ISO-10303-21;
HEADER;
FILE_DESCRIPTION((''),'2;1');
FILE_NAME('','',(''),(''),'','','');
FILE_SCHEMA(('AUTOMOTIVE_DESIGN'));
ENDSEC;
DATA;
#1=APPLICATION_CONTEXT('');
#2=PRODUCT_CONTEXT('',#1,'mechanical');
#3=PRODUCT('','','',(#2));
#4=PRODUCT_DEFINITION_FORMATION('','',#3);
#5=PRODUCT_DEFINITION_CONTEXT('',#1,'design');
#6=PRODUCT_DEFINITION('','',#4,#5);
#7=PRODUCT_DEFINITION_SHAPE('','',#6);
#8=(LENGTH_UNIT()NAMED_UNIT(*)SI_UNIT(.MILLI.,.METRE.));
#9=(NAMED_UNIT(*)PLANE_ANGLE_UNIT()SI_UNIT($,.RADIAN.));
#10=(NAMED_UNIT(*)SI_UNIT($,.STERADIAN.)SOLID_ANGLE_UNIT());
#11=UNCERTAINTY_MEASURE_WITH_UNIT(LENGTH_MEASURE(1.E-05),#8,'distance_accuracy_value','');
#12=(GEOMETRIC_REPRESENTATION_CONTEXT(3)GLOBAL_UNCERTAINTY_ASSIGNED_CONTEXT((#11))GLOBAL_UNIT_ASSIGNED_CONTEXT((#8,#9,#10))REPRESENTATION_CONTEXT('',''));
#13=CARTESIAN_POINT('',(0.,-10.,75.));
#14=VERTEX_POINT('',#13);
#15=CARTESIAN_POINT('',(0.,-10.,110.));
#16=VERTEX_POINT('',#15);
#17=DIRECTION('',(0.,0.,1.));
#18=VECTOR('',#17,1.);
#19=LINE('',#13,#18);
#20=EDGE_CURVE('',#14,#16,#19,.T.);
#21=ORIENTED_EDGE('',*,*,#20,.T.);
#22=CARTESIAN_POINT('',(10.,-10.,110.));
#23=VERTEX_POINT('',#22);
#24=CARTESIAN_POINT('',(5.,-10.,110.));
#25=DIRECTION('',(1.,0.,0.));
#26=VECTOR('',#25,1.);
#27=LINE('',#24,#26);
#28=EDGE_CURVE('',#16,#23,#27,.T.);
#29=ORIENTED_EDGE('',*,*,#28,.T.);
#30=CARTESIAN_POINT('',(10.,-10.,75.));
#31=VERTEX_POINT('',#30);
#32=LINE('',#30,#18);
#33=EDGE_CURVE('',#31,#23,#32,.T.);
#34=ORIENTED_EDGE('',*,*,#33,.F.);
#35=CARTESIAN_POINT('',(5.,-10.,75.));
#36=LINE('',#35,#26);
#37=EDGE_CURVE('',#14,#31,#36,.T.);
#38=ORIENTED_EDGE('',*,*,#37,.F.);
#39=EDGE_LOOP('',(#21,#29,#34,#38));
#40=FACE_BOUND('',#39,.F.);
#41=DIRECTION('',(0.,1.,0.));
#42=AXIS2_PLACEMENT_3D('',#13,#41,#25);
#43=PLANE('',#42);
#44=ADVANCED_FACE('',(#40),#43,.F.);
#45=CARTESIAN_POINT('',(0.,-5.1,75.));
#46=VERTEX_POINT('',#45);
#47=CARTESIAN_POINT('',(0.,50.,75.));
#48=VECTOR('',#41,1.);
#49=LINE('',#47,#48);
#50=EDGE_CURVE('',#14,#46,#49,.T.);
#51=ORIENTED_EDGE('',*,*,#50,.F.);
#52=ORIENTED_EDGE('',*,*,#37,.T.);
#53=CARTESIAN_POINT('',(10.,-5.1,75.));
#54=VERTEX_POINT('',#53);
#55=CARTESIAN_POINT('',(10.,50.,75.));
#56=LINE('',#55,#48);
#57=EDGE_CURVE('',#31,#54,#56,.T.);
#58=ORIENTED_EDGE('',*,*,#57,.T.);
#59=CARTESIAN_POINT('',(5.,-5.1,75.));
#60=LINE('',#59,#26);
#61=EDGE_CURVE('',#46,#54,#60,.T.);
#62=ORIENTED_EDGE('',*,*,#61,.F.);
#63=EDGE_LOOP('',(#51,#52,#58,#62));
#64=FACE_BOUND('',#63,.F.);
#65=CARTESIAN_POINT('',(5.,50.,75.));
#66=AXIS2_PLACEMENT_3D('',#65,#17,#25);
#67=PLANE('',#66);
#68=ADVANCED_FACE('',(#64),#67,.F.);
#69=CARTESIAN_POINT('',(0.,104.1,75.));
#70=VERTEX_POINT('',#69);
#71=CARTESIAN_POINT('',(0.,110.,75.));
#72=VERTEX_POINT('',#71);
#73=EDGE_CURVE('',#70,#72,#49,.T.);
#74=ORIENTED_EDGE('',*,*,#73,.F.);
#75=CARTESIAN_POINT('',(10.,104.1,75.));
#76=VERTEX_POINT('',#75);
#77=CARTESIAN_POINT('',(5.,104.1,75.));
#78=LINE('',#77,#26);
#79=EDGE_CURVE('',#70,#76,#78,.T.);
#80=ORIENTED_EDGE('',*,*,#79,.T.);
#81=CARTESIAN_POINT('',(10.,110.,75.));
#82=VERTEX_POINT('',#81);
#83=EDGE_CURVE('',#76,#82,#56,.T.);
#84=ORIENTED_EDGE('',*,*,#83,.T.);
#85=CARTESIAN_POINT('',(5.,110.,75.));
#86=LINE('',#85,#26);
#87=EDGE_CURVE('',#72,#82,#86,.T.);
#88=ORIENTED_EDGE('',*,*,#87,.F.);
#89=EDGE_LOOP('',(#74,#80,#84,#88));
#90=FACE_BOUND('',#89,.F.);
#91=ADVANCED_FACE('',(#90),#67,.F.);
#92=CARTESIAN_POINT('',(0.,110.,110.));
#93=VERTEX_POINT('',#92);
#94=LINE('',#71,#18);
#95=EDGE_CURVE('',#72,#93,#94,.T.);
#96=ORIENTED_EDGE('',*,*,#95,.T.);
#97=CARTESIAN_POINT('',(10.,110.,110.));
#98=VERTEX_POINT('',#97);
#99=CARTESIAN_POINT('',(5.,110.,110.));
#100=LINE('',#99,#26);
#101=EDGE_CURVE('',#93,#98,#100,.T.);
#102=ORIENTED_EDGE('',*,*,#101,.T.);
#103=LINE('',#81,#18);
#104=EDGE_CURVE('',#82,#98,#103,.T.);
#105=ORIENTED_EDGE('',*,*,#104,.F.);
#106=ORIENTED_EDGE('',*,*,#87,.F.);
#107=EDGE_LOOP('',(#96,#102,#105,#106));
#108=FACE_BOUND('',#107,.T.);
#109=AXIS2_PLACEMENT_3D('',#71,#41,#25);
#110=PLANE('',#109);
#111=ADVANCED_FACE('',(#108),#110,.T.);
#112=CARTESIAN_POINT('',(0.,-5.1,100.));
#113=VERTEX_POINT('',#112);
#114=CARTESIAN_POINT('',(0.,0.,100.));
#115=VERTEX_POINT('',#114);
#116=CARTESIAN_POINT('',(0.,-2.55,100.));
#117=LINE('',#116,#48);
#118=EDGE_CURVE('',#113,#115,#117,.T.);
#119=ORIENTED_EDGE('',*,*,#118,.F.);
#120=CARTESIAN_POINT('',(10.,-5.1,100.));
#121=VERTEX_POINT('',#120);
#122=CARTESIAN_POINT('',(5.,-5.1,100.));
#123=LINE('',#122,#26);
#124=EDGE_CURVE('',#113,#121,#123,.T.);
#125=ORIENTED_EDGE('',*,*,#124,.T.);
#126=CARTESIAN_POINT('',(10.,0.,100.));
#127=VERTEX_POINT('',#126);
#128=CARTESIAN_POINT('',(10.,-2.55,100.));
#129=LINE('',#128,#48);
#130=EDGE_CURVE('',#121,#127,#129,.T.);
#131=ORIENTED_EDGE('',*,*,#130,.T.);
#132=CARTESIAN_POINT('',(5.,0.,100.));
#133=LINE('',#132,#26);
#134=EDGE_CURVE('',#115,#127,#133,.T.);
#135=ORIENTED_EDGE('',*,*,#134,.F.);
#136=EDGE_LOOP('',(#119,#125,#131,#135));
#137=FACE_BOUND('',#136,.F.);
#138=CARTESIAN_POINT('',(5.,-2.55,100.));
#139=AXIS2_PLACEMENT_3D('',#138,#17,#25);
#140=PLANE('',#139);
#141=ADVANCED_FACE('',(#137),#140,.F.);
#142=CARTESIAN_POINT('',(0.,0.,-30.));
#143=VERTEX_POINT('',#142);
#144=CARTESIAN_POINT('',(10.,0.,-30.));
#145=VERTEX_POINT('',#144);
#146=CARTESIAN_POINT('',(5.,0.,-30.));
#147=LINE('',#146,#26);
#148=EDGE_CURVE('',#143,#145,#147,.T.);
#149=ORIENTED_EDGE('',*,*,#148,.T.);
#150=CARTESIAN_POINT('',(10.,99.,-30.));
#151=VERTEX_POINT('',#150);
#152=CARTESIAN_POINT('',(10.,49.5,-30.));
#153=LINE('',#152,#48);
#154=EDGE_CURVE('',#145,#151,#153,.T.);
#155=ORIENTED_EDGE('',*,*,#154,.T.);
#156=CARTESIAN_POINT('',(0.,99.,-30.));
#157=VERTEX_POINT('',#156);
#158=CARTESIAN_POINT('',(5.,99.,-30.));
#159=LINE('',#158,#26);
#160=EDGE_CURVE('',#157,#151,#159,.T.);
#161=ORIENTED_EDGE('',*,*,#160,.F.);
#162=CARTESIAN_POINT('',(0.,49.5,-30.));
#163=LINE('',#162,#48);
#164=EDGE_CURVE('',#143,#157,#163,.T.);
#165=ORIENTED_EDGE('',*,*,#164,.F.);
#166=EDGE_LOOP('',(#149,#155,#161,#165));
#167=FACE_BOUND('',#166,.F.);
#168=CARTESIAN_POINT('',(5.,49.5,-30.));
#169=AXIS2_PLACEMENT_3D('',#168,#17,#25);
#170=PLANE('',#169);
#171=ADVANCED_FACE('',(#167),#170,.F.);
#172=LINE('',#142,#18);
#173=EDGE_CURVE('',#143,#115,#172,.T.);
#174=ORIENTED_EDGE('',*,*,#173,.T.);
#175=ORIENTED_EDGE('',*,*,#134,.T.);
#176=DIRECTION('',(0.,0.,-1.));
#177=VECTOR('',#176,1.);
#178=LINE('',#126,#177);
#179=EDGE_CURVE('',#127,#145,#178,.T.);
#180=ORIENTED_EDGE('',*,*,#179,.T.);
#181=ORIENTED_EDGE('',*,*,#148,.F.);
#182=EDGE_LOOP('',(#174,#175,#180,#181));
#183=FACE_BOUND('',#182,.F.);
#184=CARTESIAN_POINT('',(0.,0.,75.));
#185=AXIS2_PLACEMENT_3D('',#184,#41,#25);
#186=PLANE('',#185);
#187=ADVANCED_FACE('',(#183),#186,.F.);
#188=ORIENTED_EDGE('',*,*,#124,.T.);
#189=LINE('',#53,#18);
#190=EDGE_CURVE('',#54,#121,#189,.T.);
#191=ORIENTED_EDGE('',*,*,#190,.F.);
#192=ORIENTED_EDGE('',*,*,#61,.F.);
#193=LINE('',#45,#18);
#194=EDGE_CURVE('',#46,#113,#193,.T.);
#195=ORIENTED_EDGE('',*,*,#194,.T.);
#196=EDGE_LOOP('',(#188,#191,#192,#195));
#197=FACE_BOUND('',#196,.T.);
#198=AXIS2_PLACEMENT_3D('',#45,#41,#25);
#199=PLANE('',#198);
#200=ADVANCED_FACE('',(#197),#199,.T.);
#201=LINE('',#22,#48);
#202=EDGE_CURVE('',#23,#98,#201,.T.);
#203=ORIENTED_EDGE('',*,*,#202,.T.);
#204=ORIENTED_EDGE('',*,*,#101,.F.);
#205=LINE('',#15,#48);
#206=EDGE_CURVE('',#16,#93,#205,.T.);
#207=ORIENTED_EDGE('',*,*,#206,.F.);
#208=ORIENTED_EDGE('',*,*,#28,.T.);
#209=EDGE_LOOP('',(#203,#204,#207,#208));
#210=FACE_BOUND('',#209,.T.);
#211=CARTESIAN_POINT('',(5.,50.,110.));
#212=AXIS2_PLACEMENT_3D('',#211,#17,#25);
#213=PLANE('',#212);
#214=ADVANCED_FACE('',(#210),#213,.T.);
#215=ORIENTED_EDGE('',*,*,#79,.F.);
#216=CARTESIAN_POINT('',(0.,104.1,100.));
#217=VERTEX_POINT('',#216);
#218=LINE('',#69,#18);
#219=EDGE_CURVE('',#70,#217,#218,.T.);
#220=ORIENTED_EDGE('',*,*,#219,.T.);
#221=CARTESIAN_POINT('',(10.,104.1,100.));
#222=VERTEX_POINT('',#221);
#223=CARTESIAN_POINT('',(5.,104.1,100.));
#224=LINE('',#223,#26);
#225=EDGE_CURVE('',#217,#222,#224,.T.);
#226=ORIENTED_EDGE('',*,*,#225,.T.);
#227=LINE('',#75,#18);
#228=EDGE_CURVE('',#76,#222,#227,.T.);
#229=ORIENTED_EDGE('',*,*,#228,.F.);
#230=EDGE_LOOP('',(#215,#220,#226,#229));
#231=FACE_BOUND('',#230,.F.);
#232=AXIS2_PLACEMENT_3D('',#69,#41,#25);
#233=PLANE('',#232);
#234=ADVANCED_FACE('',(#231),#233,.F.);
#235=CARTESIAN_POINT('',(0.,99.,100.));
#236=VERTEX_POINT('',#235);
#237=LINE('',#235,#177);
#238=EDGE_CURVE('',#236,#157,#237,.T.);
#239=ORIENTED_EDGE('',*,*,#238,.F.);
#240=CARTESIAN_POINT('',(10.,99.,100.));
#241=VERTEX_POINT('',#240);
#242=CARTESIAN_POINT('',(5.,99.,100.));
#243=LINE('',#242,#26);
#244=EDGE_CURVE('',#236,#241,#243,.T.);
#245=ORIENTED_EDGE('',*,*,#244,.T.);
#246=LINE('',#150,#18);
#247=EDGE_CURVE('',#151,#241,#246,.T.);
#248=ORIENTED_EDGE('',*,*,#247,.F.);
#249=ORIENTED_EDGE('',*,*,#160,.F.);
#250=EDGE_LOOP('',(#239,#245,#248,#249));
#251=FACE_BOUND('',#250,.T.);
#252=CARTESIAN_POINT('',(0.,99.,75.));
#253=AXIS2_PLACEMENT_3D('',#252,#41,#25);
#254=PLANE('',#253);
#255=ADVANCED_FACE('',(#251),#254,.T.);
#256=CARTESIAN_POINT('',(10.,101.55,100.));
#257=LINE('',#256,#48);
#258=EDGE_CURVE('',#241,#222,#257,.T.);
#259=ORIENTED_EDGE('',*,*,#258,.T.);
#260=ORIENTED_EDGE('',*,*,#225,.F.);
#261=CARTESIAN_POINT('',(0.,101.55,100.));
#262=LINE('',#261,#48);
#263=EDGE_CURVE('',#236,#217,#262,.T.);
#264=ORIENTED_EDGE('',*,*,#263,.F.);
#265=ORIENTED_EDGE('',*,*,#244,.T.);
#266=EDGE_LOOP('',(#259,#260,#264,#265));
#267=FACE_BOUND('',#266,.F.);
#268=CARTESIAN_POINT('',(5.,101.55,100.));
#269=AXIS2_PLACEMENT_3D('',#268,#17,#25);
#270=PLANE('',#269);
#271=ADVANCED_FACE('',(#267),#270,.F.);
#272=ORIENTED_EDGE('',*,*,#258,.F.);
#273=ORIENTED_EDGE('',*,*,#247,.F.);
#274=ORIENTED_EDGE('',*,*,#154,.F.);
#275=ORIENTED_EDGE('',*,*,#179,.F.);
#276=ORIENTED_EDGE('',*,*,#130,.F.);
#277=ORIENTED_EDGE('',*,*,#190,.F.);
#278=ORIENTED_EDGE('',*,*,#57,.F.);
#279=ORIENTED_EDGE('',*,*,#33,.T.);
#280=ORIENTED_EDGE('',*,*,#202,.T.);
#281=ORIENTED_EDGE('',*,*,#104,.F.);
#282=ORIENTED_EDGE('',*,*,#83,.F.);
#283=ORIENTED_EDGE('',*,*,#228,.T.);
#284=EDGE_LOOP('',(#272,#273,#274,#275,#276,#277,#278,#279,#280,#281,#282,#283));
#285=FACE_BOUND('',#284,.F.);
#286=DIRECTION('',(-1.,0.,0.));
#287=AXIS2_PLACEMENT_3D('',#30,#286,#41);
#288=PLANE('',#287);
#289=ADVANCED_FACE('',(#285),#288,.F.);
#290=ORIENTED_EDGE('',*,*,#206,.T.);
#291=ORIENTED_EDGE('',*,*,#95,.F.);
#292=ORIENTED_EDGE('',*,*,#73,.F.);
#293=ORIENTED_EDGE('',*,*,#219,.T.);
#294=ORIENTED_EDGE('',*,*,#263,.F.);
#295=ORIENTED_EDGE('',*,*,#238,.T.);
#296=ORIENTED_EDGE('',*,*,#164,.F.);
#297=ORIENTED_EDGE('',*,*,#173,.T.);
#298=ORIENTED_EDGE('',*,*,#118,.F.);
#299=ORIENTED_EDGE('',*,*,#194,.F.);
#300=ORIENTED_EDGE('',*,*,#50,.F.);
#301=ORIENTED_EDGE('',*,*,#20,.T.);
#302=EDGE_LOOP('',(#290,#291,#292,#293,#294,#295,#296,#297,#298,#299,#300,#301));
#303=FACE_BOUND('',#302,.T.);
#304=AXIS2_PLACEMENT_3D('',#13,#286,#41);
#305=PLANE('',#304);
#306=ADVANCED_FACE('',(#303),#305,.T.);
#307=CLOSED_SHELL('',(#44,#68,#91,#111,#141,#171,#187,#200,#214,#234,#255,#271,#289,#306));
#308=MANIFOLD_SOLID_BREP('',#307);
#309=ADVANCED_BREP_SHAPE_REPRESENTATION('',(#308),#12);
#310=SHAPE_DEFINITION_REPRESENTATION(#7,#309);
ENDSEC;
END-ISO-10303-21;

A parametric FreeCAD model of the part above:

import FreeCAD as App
import Part
import Sketcher
Q = App.Units.Quantity


def add_polygon(sketch, points):
    """Adds a closed chain of lines whose ends are joined by coincident constraints."""
    first, n = sketch.GeometryCount, len(points)
    for a, b in zip(points, points[1:] + points[:1]):
        sketch.addGeometry(Part.LineSegment(App.Vector(*a, 0), App.Vector(*b, 0)), False)
    for i in range(n):
        sketch.addConstraint(Sketcher.Constraint("Coincident", first + i, 2, first + (i + 1) % n, 1))

doc = App.newDocument("Part")
body = doc.addObject("PartDesign::Body", "Body")

# Sketch on XY plane
sketch1 = body.newObject("Sketcher::SketchObject", "Sketch")
sketch1.AttachmentSupport = (doc.getObject("XY_Plane"), [""])
sketch1.MapMode = "FlatFace"
sketch1.AttachmentOffset = App.Placement(App.Vector(0, 0, 75), App.Rotation())
add_polygon(sketch1, [(0, 104), (0, 99), (10, 99), (10, 104)])  # lines 0-3
sketch1.addConstraint([
    Sketcher.Constraint("Vertical", 0),
    Sketcher.Constraint("Horizontal", 1),
    Sketcher.Constraint("Vertical", 2),
    Sketcher.Constraint("Horizontal", 3),
    Sketcher.Constraint("PointOnObject", 0, 2, -2),
    Sketcher.Constraint("DistanceX", 1, 1, 1, 2, Q("10 mm")),
    Sketcher.Constraint("DistanceY", 0, 2, 0, 1, Q("5.1 mm")),
    Sketcher.Constraint("DistanceY", -1, 1, 0, 2, Q("99 mm")),
])
pad1 = body.newObject("PartDesign::Pad", "Pad")
pad1.Profile = sketch1
pad1.Length = 25
body2 = doc.addObject("PartDesign::Body", "Body001")

# Sketch on XY plane
sketch2 = body2.newObject("Sketcher::SketchObject", "Sketch001")
sketch2.AttachmentSupport = (doc.getObject("XY_Plane001"), [""])
sketch2.MapMode = "FlatFace"
sketch2.AttachmentOffset = App.Placement(App.Vector(0, 0, 75), App.Rotation())
add_polygon(sketch2, [(0, 0), (0, -5), (10, -5), (10, 0)])  # lines 0-3
sketch2.addConstraint([
    Sketcher.Constraint("Vertical", 0),
    Sketcher.Constraint("Horizontal", 1),
    Sketcher.Constraint("Vertical", 2),
    Sketcher.Constraint("Horizontal", 3),
    Sketcher.Constraint("Coincident", 3, 2, -1, 1),
    Sketcher.Constraint("DistanceX", 1, 1, 1, 2, Q("10 mm")),
    Sketcher.Constraint("DistanceY", 0, 2, 0, 1, Q("5.1 mm")),
])
pad2 = body2.newObject("PartDesign::Pad", "Pad001")
pad2.Profile = sketch2
pad2.Length = 25
body3 = doc.addObject("PartDesign::Body", "Body002")

# Sketch on XY plane
sketch3 = body3.newObject("Sketcher::SketchObject", "Sketch002")
sketch3.AttachmentSupport = (doc.getObject("XY_Plane002"), [""])
sketch3.MapMode = "FlatFace"
sketch3.AttachmentOffset = App.Placement(App.Vector(0, 0, 75), App.Rotation())
add_polygon(sketch3, [(0, 110), (0, -10), (10, -10), (10, 110)])  # lines 0-3
sketch3.addConstraint([
    Sketcher.Constraint("Vertical", 0),
    Sketcher.Constraint("Horizontal", 1),
    Sketcher.Constraint("Vertical", 2),
    Sketcher.Constraint("Horizontal", 3),
    Sketcher.Constraint("PointOnObject", 0, 2, -2),
    Sketcher.Constraint("DistanceX", 1, 1, 1, 2, Q("10 mm")),
    Sketcher.Constraint("DistanceY", 0, 2, 0, 1, Q("120 mm")),
    Sketcher.Constraint("DistanceY", 0, 2, -1, 1, Q("10 mm")),
])
pad3 = body3.newObject("PartDesign::Pad", "Pad002")
pad3.Profile = sketch3
pad3.Length = 35
doc.recompute()

boolean = body3.newObject("PartDesign::Boolean", "Boolean")
boolean.Type = "Cut"
boolean.addObjects([body2])
doc.recompute()

boolean2 = body3.newObject("PartDesign::Boolean", "Boolean001")
boolean2.Type = "Cut"
boolean2.addObjects([body])
body4 = doc.addObject("PartDesign::Body", "Body003")

# Sketch on XY plane
sketch4 = body4.newObject("Sketcher::SketchObject", "Sketch003")
sketch4.AttachmentSupport = (doc.getObject("XY_Plane003"), [""])
sketch4.MapMode = "FlatFace"
sketch4.AttachmentOffset = App.Placement(App.Vector(0, 0, -30), App.Rotation())
add_polygon(sketch4, [(0, 99), (0, 0), (10, 0), (10, 99)])  # lines 0-3
sketch4.addConstraint([
    Sketcher.Constraint("Vertical", 0),
    Sketcher.Constraint("Horizontal", 1),
    Sketcher.Constraint("Vertical", 2),
    Sketcher.Constraint("Horizontal", 3),
    Sketcher.Constraint("Coincident", 0, 2, -1, 1),
    Sketcher.Constraint("DistanceX", 1, 1, 1, 2, Q("10 mm")),
    Sketcher.Constraint("DistanceY", 0, 2, 0, 1, Q("99 mm")),
])
pad4 = body4.newObject("PartDesign::Pad", "Pad003")
pad4.Profile = sketch4
pad4.Length = 140
doc.recompute()

boolean3 = body4.newObject("PartDesign::Boolean", "Boolean002")
boolean3.Type = "Fuse"
boolean3.addObjects([body3])

doc.recompute()
